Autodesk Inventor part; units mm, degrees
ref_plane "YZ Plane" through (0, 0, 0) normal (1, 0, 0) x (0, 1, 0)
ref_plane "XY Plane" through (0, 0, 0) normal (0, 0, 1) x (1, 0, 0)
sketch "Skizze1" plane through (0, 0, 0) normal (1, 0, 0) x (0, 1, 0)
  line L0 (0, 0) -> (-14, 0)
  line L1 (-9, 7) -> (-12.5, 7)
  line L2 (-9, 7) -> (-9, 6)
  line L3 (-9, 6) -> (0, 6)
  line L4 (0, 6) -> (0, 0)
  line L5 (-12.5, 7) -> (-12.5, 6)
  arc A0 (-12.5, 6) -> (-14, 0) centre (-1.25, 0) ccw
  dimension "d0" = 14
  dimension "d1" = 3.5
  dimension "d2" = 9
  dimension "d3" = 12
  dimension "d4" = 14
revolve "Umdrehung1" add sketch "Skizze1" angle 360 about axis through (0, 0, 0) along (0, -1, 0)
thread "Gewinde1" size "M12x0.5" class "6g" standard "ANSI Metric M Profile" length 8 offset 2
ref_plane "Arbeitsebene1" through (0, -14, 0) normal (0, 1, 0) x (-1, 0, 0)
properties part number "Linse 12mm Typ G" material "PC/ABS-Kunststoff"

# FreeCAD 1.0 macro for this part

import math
import FreeCAD as App
import Part
import Sketcher
from FreeCAD import Vector

doc = App.newDocument("Part")
body = doc.addObject("PartDesign::Body", "Body")

# Sketch on YZ plane
sketch1 = doc.addObject("Sketcher::SketchObject", "Sketch")
body.addObject(sketch1)
sketch1.AttachmentSupport = (doc.YZ_Plane, [""])
sketch1.MapMode = "FlatFace"
sketch1.addGeometry([
    Part.LineSegment(Vector(-14, 0, 0), Vector(0, 0, 0)),  # 0
    Part.LineSegment(Vector(0, 0, 0), Vector(0, 6, 0)),  # 1
    Part.LineSegment(Vector(0, 6, 0), Vector(-9, 6, 0)),  # 2
    Part.LineSegment(Vector(-9, 6, 0), Vector(-9, 7, 0)),  # 3
    Part.LineSegment(Vector(-9, 7, 0), Vector(-12.5, 7, 0)),  # 4
    Part.LineSegment(Vector(-12.5, 7, 0), Vector(-12.5, 6, 0)),  # 5
    Part.ArcOfCircle(Part.Circle(Vector(-1.2, 0, 0), Vector(0, 0, 1), 12.8), math.radians(152), math.radians(180)),  # 6
], False)
sketch1.addConstraint([
    Sketcher.Constraint("Coincident", 0, 2, 1, 1),
    Sketcher.Constraint("Coincident", 1, 2, 2, 1),
    Sketcher.Constraint("Coincident", 2, 2, 3, 1),
    Sketcher.Constraint("Coincident", 3, 2, 4, 1),
    Sketcher.Constraint("Coincident", 4, 2, 5, 1),
    Sketcher.Constraint("Coincident", 5, 2, 6, 1),
    Sketcher.Constraint("Coincident", 6, 2, 0, 1),
    Sketcher.Constraint("Horizontal", 0),
    Sketcher.Constraint("Vertical", 1),
    Sketcher.Constraint("Horizontal", 2),
    Sketcher.Constraint("Vertical", 3),
    Sketcher.Constraint("Horizontal", 4),
    Sketcher.Constraint("Vertical", 5),
    Sketcher.Constraint("Coincident", 0, 2, -1, 1),
    Sketcher.Constraint("PointOnObject", 6, 3, -1),
    Sketcher.Constraint("Horizontal", 2, 2, 5, 2),
    Sketcher.Constraint("DistanceX", 0, 1, 0, 2, 14.0),
    Sketcher.Constraint("DistanceX", 2, 2, 2, 1, 9.0),
    Sketcher.Constraint("DistanceX", 4, 2, 4, 1, 3.5),
    Sketcher.Constraint("DistanceY", 1, 1, 1, 2, 6.0),
    Sketcher.Constraint("DistanceY", 3, 1, 3, 2, 1.0),
])
revolution = doc.addObject("PartDesign::Revolution", "Revolution")
body.addObject(revolution)
revolution.Profile = sketch1
revolution.ReferenceAxis = (sketch1, ["H_Axis"])
revolution.Angle = 360

doc.recompute()
